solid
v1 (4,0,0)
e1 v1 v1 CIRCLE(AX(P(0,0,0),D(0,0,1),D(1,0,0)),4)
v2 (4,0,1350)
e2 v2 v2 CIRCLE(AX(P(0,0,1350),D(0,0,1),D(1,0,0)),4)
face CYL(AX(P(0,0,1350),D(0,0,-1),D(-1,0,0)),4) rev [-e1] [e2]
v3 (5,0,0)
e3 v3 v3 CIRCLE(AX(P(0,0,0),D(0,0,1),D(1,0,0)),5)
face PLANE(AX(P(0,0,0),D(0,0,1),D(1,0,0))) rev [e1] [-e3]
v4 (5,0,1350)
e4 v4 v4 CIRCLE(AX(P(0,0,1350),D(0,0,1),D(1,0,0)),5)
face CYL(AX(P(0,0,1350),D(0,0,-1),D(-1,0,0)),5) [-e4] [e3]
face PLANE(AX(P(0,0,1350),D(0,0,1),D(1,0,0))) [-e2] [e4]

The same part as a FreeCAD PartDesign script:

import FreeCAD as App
import Part
import Sketcher
from FreeCAD import Vector

doc = App.newDocument("Part")
body = doc.addObject("PartDesign::Body", "Body")

# Sketch on XY plane
sketch1 = doc.addObject("Sketcher::SketchObject", "Sketch")
body.addObject(sketch1)
sketch1.AttachmentSupport = (doc.XY_Plane, [""])
sketch1.MapMode = "FlatFace"
sketch1.addGeometry([
    Part.Circle(Vector(0, 0, 0), Vector(0, 0, 1), 5),
    Part.Circle(Vector(0, 0, 0), Vector(0, 0, 1), 4),
], False)
sketch1.addConstraint([
    Sketcher.Constraint("Coincident", 0, 3, -1, 1),
    Sketcher.Constraint("Coincident", 1, 3, -1, 1),
    Sketcher.Constraint("Diameter", 0, 10.0),
    Sketcher.Constraint("Diameter", 1, 8.0),
])
pad1 = doc.addObject("PartDesign::Pad", "Pad")
body.addObject(pad1)
pad1.Profile = sketch1
pad1.Length = 1350

doc.recompute()
